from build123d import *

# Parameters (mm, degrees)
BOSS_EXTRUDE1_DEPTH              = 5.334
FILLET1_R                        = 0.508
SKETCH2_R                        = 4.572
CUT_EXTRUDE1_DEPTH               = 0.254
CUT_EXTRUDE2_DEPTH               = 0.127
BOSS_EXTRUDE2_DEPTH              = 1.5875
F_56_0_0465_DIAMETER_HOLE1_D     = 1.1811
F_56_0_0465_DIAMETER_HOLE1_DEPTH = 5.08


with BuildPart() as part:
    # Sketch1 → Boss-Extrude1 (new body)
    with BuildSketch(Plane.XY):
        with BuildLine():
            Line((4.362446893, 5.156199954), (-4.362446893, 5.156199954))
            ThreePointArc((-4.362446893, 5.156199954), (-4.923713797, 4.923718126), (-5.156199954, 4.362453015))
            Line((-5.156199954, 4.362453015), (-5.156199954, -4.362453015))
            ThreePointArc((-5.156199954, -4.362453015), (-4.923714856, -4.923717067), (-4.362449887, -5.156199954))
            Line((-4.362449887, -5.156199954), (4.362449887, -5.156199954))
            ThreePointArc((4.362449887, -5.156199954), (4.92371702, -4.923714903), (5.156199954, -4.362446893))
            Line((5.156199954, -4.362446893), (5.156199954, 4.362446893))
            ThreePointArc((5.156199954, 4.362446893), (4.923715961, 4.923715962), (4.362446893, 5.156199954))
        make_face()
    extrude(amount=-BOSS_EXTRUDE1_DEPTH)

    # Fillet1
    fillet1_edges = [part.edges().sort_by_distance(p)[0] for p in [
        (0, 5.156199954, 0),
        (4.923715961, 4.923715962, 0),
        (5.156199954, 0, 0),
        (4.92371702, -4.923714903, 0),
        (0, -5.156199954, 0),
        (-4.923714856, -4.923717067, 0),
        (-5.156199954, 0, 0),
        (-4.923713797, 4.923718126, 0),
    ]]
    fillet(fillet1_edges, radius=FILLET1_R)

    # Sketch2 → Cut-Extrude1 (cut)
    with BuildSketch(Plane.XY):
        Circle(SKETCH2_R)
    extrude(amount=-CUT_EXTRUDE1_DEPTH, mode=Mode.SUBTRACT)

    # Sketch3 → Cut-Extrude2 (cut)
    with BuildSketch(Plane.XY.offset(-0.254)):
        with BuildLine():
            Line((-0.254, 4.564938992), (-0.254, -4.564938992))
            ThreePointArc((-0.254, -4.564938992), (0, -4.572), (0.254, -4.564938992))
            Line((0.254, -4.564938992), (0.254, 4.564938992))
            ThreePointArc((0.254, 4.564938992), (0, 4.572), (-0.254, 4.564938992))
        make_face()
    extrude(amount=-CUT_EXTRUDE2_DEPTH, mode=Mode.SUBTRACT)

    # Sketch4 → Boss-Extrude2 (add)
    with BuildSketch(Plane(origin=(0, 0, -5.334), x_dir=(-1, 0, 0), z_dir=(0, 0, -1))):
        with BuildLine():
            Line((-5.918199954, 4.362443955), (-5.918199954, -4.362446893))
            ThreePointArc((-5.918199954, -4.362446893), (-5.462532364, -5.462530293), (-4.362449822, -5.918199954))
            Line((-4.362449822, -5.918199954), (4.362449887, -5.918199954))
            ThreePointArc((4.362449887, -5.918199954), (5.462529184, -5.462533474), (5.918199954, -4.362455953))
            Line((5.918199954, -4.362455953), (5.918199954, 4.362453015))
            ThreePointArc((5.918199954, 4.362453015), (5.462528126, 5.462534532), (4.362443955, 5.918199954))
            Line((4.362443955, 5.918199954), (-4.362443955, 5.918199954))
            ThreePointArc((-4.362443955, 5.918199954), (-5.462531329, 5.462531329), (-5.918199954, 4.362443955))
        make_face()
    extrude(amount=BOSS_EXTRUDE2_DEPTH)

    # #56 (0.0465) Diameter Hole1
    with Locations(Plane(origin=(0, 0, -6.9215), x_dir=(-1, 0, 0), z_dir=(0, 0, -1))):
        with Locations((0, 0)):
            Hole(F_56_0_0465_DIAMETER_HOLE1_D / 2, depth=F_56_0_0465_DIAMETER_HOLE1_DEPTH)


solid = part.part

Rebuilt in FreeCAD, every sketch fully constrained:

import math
import FreeCAD as App
import Part
import Sketcher
Q = App.Units.Quantity


def edges_at(feature, points):
    """Names of the edges that pass closest to the given points."""
    edges = feature.Shape.Edges
    near = lambda p: min(range(len(edges)), key=lambda i: edges[i].distToShape(Part.Vertex(*p))[0])
    return sorted({f"Edge{near(p) + 1}" for p in points})

doc = App.newDocument("Part")
body = doc.addObject("PartDesign::Body", "Body")

sketch1 = doc.addObject("Sketcher::SketchObject", "Sketch")
body.addObject(sketch1)
sketch1.AttachmentSupport = (doc.XY_Plane, [""])
sketch1.MapMode = "FlatFace"
sketch1.addGeometry([
    Part.LineSegment(App.Vector(4.4, 5.2, 0), App.Vector(-4.4, 5.2, 0)),
    Part.ArcOfCircle(Part.Circle(App.Vector(-4.4, 4.4, 0), App.Vector(0, 0, 1), 0.8), math.radians(90), math.radians(180)),
    Part.LineSegment(App.Vector(-5.2, 4.4, 0), App.Vector(-5.2, -4.4, 0)),
    Part.ArcOfCircle(Part.Circle(App.Vector(-4.4, -4.4, 0), App.Vector(0, 0, 1), 0.8), math.radians(-180), math.radians(-90)),
    Part.LineSegment(App.Vector(-4.4, -5.2, 0), App.Vector(4.4, -5.2, 0)),
    Part.ArcOfCircle(Part.Circle(App.Vector(4.4, -4.4, 0), App.Vector(0, 0, 1), 0.8), math.radians(-90), math.radians(0)),
    Part.LineSegment(App.Vector(5.2, -4.4, 0), App.Vector(5.2, 4.4, 0)),
    Part.ArcOfCircle(Part.Circle(App.Vector(4.4, 4.4, 0), App.Vector(0, 0, 1), 0.8), math.radians(0), math.radians(90)),
], False)
sketch1.addConstraint([
    Sketcher.Constraint("Coincident", 0, 2, 1, 1),
    Sketcher.Constraint("Coincident", 1, 2, 2, 1),
    Sketcher.Constraint("Coincident", 2, 2, 3, 1),
    Sketcher.Constraint("Tangent", 3, 2, 4, 1),
    Sketcher.Constraint("Tangent", 4, 2, 5, 1),
    Sketcher.Constraint("Coincident", 5, 2, 6, 1),
    Sketcher.Constraint("Coincident", 6, 2, 7, 1),
    Sketcher.Constraint("Coincident", 7, 2, 0, 1),
    Sketcher.Constraint("Horizontal", 0),
    Sketcher.Constraint("Vertical", 2),
    Sketcher.Constraint("Horizontal", 4),
    Sketcher.Constraint("Vertical", 6),
    Sketcher.Constraint("Equal", 1, 3),
    Sketcher.Constraint("Equal", 3, 5),
    Sketcher.Constraint("Equal", 5, 7),
    Sketcher.Constraint("Symmetric", 1, 3, 5, 3, -1, 1),
    Sketcher.Constraint("Equal", 0, 6),
    Sketcher.Constraint("Radius", 1, Q("0.03125 in")),
    Sketcher.Constraint("DistanceX", 4, 1, 4, 2, Q("0.3435 in")),
    Sketcher.Constraint("DistanceY", -1, 1, 0, 2, Q("0.203 in")),
    Sketcher.Constraint("DistanceX", 1, 2, 0, 2, Q("0.0312501 in")),
    Sketcher.Constraint("DistanceY", 1, 2, 0, 2, Q("0.0312499 in")),
    Sketcher.Constraint("DistanceY", 3, 2, 2, 2, Q("0.0312499 in")),
    Sketcher.Constraint("DistanceY", 4, 2, 5, 2, Q("0.0312501 in")),
    Sketcher.Constraint("DistanceX", 7, 2, 6, 2, Q("0.0312501 in")),
])
pad1 = doc.addObject("PartDesign::Pad", "Pad")
body.addObject(pad1)
pad1.Profile = sketch1
pad1.Length = Q("0.21 in")
pad1.Reversed = True
doc.recompute()

fillet = doc.addObject("PartDesign::Fillet", "Fillet")
body.addObject(fillet)
fillet.Base = (pad1, edges_at(pad1, [
    (0, 5.156, 0),
    (4.924, 4.924, 0),
    (5.156, 0, 0),
    (4.924, -4.924, 0),
    (0, -5.156, 0),
    (-4.924, -4.924, 0),
    (-5.156, 0, 0),
    (-4.924, 4.924, 0),
]))
fillet.Radius = Q("0.02 in")

sketch2 = doc.addObject("Sketcher::SketchObject", "Sketch001")
body.addObject(sketch2)
sketch2.AttachmentSupport = (doc.XY_Plane, [""])
sketch2.MapMode = "FlatFace"
sketch2.addGeometry(Part.Circle(App.Vector(0, 0, 0), App.Vector(0, 0, 1), 4.6), False)
sketch2.addConstraint([
    Sketcher.Constraint("Coincident", 0, 3, -1, 1),
    Sketcher.Constraint("Diameter", 0, Q("0.36 in")),
])
pocket1 = doc.addObject("PartDesign::Pocket", "Pocket")
body.addObject(pocket1)
pocket1.Profile = sketch2
pocket1.Length = Q("0.01 in")

sketch3 = doc.addObject("Sketcher::SketchObject", "Sketch002")
body.addObject(sketch3)
sketch3.AttachmentSupport = (doc.XY_Plane, [""])
sketch3.MapMode = "FlatFace"
sketch3.AttachmentOffset = App.Placement(App.Vector(0, 0, -0.01 * 25.4), App.Rotation())
sketch3.addGeometry([
    Part.LineSegment(App.Vector(-0.3, 4.6, 0), App.Vector(-0.3, -4.6, 0)),
    Part.ArcOfCircle(Part.Circle(App.Vector(0, 0, 0), App.Vector(0, 0, 1), 4.6), math.radians(-93.18), math.radians(-86.82)),
    Part.LineSegment(App.Vector(0.3, -4.6, 0), App.Vector(0.3, 4.6, 0)),
    Part.ArcOfCircle(Part.Circle(App.Vector(0, 0, 0), App.Vector(0, 0, 1), 4.6), math.radians(86.82), math.radians(93.18)),
], False)
sketch3.addConstraint([
    Sketcher.Constraint("Coincident", 0, 2, 1, 1),
    Sketcher.Constraint("Coincident", 1, 2, 2, 1),
    Sketcher.Constraint("Coincident", 2, 2, 3, 1),
    Sketcher.Constraint("Coincident", 3, 2, 0, 1),
    Sketcher.Constraint("Vertical", 0),
    Sketcher.Constraint("Vertical", 2),
    Sketcher.Constraint("Coincident", 1, 3, -1, 1),
    Sketcher.Constraint("Coincident", 3, 3, -1, 1),
    Sketcher.Constraint("Equal", 1, 3),
    Sketcher.Constraint("Horizontal", 0, 2, 1, 2),
    Sketcher.Constraint("Radius", 1, Q("0.18 in")),
    Sketcher.Constraint("DistanceX", 0, 2, -1, 1, Q("0.01 in")),
])
pocket2 = doc.addObject("PartDesign::Pocket", "Pocket001")
body.addObject(pocket2)
pocket2.Profile = sketch3
pocket2.Length = Q("0.005 in")

sketch4 = doc.addObject("Sketcher::SketchObject", "Sketch003")
body.addObject(sketch4)
sketch4.AttachmentSupport = (doc.XY_Plane, [""])
sketch4.MapMode = "FlatFace"
sketch4.AttachmentOffset = App.Placement(App.Vector(0, 0, -0.21 * 25.4), App.Rotation())
sketch4.addGeometry([
    Part.LineSegment(App.Vector(5.9, 4.4, 0), App.Vector(5.9, -4.4, 0)),
    Part.ArcOfCircle(Part.Circle(App.Vector(4.4, -4.4, 0), App.Vector(0, 0, 1), 1.6), math.radians(-90), math.radians(0)),
    Part.LineSegment(App.Vector(4.4, -5.9, 0), App.Vector(-4.4, -5.9, 0)),
    Part.ArcOfCircle(Part.Circle(App.Vector(-4.4, -4.4, 0), App.Vector(0, 0, 1), 1.6), math.radians(-180), math.radians(-90)),
    Part.LineSegment(App.Vector(-5.9, -4.4, 0), App.Vector(-5.9, 4.4, 0)),
    Part.ArcOfCircle(Part.Circle(App.Vector(-4.4, 4.4, 0), App.Vector(0, 0, 1), 1.6), math.radians(90), math.radians(180)),
    Part.LineSegment(App.Vector(-4.4, 5.9, 0), App.Vector(4.4, 5.9, 0)),
    Part.ArcOfCircle(Part.Circle(App.Vector(4.4, 4.4, 0), App.Vector(0, 0, 1), 1.6), math.radians(0), math.radians(90)),
], False)
sketch4.addConstraint([
    Sketcher.Constraint("Tangent", 0, 2, 1, 2),
    Sketcher.Constraint("Tangent", 1, 1, 2, 1),
    Sketcher.Constraint("Tangent", 2, 2, 3, 2),
    Sketcher.Constraint("Coincident", 3, 1, 4, 1),
    Sketcher.Constraint("Tangent", 4, 2, 5, 2),
    Sketcher.Constraint("Coincident", 5, 1, 6, 1),
    Sketcher.Constraint("Coincident", 6, 2, 7, 2),
    Sketcher.Constraint("Coincident", 7, 1, 0, 1),
    Sketcher.Constraint("Vertical", 0),
    Sketcher.Constraint("Horizontal", 2),
    Sketcher.Constraint("Vertical", 4),
    Sketcher.Constraint("Horizontal", 6),
    Sketcher.Constraint("Equal", 1, 3),
    Sketcher.Constraint("Equal", 3, 5),
    Sketcher.Constraint("Equal", 5, 7),
    Sketcher.Constraint("Symmetric", 1, 3, 5, 3, -1, 1),
    Sketcher.Constraint("DistanceX", 2, 2, 2, 1, Q("0.3435 in")),
    Sketcher.Constraint("DistanceX", -1, 1, 0, 2, Q("0.233 in")),
    Sketcher.Constraint("DistanceY", 1, 1, -1, 1, Q("0.233 in")),
    Sketcher.Constraint("DistanceY", 0, 2, 0, 1, Q("8.724891 mm")),
    Sketcher.Constraint("DistanceY", 4, 1, 4, 2, Q("8.724909 mm")),
    Sketcher.Constraint("DistanceX", 6, 1, 6, 2, Q("8.724888 mm")),
    Sketcher.Constraint("DistanceX", 5, 1, -1, 1, Q("4.362444 mm")),
])
pad2 = doc.addObject("PartDesign::Pad", "Pad001")
body.addObject(pad2)
pad2.Profile = sketch4
pad2.Length = Q("0.0625 in")
pad2.Reversed = True

sketch5 = doc.addObject("Sketcher::SketchObject", "Sketch004")
body.addObject(sketch5)
sketch5.AttachmentSupport = (doc.XY_Plane, [""])
sketch5.MapMode = "FlatFace"
sketch5.AttachmentOffset = App.Placement(App.Vector(0, 0, -0.2725 * 25.4), App.Rotation())
sketch5.addGeometry(Part.Circle(App.Vector(0, 0, 0), App.Vector(0, 0, 1), 0.6), False)
sketch5.addConstraint([
    Sketcher.Constraint("Coincident", 0, 3, -1, 1),
    Sketcher.Constraint("Diameter", 0, Q("0.0465 in")),
])
doc.recompute()
hole = doc.addObject("PartDesign::Hole", "Hole")
body.addObject(hole)
hole.Profile = sketch5
hole.ThreadType = "None"
hole.Diameter = Q("0.0465 in")
hole.DepthType = "Dimension"
hole.Depth = Q("0.2 in")
hole.DrillPoint = "Flat"
hole.Reversed = True

doc.recompute()
